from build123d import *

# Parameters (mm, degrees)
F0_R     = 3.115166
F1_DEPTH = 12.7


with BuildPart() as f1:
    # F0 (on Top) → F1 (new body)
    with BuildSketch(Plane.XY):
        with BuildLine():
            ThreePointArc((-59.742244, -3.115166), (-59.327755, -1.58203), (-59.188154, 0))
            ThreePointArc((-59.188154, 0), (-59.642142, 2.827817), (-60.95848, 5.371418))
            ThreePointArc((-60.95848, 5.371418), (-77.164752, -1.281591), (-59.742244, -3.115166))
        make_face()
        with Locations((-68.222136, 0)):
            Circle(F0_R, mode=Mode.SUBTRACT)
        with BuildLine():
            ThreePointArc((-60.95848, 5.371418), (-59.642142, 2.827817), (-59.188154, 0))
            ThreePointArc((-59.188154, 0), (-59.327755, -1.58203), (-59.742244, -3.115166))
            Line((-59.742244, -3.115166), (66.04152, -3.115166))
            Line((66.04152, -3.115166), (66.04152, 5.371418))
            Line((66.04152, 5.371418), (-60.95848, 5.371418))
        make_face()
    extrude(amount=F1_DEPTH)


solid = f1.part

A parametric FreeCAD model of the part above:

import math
import FreeCAD as App
import Part
import Sketcher
Q = App.Units.Quantity

doc = App.newDocument("Part")
body = doc.addObject("PartDesign::Body", "Body")

sketch1 = body.newObject("Sketcher::SketchObject", "Sketch")
sketch1.AttachmentSupport = (doc.getObject("XY_Plane"), [""])
sketch1.MapMode = "FlatFace"
sketch1.addGeometry(Part.ArcOfCircle(Part.Circle(App.Vector(-68.2, 0, 0), App.Vector(0, 0, 1), 9), math.radians(36), math.radians(340)), False)
sketch1.addGeometry(Part.LineSegment(App.Vector(-59.7, -3.1, 0), App.Vector(66, -3.1, 0)), False)
sketch1.addGeometry(Part.LineSegment(App.Vector(66, -3.1, 0), App.Vector(66, 5.4, 0)), False)
sketch1.addGeometry(Part.LineSegment(App.Vector(66, 5.4, 0), App.Vector(-61, 5.4, 0)), False)
sketch1.addGeometry(Part.Circle(App.Vector(-68.2, 0, 0), App.Vector(0, 0, 1), 3.1), False)
sketch1.addConstraint(Sketcher.Constraint("Coincident", 0, 2, 1, 1))
sketch1.addConstraint(Sketcher.Constraint("Coincident", 1, 2, 2, 1))
sketch1.addConstraint(Sketcher.Constraint("Coincident", 2, 2, 3, 1))
sketch1.addConstraint(Sketcher.Constraint("Coincident", 3, 2, 0, 1))
sketch1.addConstraint(Sketcher.Constraint("Horizontal", 1))
sketch1.addConstraint(Sketcher.Constraint("Vertical", 2))
sketch1.addConstraint(Sketcher.Constraint("Horizontal", 3))
sketch1.addConstraint(Sketcher.Constraint("Coincident", 4, 3, 0, 3))
sketch1.addConstraint(Sketcher.Constraint("PointOnObject", 0, 3, -1))
sketch1.addConstraint(Sketcher.Constraint("DistanceX", 3, 2, 3, 1, Q("5 in")))
sketch1.addConstraint(Sketcher.Constraint("Diameter", 4, Q("6.230332 mm")))
sketch1.addConstraint(Sketcher.Constraint("Radius", 0, Q("9.033983 mm")))
sketch1.addConstraint(Sketcher.Constraint("DistanceX", 1, 1, 1, 2, Q("125.783764 mm")))
sketch1.addConstraint(Sketcher.Constraint("DistanceY", 2, 1, 2, 2, Q("8.486584 mm")))
sketch1.addConstraint(Sketcher.Constraint("DistanceX", -1, 1, 1, 2, Q("66.04152 mm")))
pad1 = body.newObject("PartDesign::Pad", "Pad")
pad1.Profile = sketch1
pad1.Length = Q("0.5 in")

doc.recompute()
